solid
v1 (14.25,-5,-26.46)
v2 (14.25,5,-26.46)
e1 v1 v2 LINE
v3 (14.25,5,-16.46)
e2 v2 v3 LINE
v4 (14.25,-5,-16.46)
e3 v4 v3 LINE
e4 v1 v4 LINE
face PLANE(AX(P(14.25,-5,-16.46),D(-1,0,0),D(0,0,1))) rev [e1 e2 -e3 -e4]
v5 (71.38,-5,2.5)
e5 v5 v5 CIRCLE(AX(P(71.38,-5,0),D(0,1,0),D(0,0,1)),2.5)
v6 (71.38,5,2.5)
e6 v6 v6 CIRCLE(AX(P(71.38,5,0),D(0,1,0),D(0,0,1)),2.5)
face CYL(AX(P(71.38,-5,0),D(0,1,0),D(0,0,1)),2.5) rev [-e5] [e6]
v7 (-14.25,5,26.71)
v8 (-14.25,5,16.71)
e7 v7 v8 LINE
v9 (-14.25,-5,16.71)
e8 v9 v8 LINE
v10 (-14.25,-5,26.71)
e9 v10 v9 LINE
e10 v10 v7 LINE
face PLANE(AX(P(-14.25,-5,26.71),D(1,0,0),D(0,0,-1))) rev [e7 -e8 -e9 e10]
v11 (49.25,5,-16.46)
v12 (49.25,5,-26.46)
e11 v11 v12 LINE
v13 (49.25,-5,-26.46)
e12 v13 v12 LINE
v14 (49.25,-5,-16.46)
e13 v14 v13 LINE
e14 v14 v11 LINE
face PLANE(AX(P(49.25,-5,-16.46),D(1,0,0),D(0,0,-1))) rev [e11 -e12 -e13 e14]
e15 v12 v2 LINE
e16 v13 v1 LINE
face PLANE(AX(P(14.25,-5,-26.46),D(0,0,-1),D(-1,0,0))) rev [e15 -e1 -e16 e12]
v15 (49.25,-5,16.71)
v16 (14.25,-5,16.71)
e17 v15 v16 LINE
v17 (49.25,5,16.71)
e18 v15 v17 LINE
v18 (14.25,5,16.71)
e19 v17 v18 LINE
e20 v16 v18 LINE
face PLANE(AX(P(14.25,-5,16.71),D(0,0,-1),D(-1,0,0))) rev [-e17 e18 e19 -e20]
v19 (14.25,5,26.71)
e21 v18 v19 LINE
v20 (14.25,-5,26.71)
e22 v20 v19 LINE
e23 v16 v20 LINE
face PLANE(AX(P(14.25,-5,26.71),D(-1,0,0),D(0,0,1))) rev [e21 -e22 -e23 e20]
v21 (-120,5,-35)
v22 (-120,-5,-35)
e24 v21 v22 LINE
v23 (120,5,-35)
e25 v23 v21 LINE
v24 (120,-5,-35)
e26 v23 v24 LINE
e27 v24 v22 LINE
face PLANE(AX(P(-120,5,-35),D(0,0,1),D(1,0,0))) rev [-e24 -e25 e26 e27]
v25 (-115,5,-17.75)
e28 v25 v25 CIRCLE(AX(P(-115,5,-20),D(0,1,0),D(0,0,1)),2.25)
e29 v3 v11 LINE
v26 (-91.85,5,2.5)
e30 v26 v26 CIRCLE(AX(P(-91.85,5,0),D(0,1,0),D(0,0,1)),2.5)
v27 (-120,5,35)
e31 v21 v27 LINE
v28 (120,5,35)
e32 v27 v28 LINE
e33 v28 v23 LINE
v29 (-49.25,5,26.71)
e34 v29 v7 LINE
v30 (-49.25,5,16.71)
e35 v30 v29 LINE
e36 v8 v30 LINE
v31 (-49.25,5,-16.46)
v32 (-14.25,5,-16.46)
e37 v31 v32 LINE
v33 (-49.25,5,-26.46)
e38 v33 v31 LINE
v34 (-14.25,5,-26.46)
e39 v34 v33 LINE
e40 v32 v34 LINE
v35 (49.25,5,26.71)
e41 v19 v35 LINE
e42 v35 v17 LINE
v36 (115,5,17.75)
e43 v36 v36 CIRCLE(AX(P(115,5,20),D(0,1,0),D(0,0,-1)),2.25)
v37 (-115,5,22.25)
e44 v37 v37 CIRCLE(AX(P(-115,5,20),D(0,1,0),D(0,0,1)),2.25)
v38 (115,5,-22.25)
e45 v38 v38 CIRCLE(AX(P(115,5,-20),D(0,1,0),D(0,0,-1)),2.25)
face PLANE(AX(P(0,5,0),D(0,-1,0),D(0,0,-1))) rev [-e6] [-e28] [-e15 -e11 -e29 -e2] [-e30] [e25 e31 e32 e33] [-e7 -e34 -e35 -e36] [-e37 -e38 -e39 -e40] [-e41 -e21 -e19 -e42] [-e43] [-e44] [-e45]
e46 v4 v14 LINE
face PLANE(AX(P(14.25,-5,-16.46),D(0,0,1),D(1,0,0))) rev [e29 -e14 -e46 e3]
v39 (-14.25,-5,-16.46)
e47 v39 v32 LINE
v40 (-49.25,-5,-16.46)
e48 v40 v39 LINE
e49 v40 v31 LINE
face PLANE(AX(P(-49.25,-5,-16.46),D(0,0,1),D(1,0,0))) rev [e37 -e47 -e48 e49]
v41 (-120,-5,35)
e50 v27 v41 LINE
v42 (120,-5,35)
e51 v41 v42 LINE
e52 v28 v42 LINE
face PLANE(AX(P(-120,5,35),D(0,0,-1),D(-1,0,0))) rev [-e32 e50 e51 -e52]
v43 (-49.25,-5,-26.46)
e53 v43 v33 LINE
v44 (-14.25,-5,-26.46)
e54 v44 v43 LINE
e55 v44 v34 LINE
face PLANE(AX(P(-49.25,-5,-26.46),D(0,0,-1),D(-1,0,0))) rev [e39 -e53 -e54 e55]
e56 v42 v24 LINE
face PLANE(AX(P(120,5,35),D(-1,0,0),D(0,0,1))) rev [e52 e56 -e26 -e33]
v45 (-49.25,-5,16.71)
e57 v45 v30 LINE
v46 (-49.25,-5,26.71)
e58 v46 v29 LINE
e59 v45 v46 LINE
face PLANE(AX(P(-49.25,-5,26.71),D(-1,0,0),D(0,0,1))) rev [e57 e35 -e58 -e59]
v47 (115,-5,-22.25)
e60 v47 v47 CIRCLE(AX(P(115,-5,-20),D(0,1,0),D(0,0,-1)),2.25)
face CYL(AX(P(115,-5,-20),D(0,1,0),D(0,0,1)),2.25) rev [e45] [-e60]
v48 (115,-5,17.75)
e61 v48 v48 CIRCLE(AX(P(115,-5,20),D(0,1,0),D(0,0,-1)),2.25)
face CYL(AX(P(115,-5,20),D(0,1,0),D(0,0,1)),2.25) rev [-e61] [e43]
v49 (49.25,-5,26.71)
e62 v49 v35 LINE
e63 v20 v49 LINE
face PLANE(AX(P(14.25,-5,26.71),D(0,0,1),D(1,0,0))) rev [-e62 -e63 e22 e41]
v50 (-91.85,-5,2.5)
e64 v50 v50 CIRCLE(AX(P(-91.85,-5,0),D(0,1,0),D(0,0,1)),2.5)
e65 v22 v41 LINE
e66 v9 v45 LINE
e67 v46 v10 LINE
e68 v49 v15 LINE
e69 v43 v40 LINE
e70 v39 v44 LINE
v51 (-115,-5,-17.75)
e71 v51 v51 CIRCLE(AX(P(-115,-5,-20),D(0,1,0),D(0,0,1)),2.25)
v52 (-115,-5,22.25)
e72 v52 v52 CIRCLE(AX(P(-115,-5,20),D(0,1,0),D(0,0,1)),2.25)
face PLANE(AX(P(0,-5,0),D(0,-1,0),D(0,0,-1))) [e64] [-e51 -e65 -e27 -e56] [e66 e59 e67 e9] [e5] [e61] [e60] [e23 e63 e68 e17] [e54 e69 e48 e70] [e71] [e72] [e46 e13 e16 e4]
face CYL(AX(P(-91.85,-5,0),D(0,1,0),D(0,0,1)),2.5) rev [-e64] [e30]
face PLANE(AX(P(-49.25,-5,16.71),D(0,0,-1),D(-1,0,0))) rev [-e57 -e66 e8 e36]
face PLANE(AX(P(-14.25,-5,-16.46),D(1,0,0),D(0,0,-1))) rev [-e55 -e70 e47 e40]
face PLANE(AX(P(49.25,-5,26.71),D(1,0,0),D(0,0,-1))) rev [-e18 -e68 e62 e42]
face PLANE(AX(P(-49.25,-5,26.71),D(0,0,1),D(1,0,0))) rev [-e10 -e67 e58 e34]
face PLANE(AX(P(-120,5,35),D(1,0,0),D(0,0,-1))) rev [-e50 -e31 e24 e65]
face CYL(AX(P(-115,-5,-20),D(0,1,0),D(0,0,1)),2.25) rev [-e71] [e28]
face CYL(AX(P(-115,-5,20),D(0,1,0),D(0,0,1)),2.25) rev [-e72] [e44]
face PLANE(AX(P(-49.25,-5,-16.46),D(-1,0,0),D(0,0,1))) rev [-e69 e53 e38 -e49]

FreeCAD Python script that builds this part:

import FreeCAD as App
import Part
import Sketcher
from FreeCAD import Vector
Q = App.Units.Quantity

doc = App.newDocument("Part")
body = doc.addObject("PartDesign::Body", "Body")

sketch1 = body.newObject("Sketcher::SketchObject", "Sketch")
sketch1.AttachmentSupport = (doc.getObject("XZ_Plane"), [""])
sketch1.MapMode = "FlatFace"
sketch1.addGeometry(Part.LineSegment(Vector(-120, -35, 0), Vector(-120, 35, 0)), False)
sketch1.addGeometry(Part.LineSegment(Vector(-120, 35, 0), Vector(120, 35, 0)), False)
sketch1.addGeometry(Part.LineSegment(Vector(120, 35, 0), Vector(120, -35, 0)), False)
sketch1.addGeometry(Part.LineSegment(Vector(120, -35, 0), Vector(-120, -35, 0)), False)
sketch1.addConstraint(Sketcher.Constraint("Coincident", 0, 2, 1, 1))
sketch1.addConstraint(Sketcher.Constraint("Coincident", 1, 2, 2, 1))
sketch1.addConstraint(Sketcher.Constraint("Coincident", 2, 2, 3, 1))
sketch1.addConstraint(Sketcher.Constraint("Coincident", 3, 2, 0, 1))
sketch1.addConstraint(Sketcher.Constraint("Vertical", 0))
sketch1.addConstraint(Sketcher.Constraint("Horizontal", 1))
sketch1.addConstraint(Sketcher.Constraint("Vertical", 2))
sketch1.addConstraint(Sketcher.Constraint("Horizontal", 3))
sketch1.addConstraint(Sketcher.Constraint("Symmetric", 0, 2, 2, 2, -1, 1))
sketch1.addConstraint(Sketcher.Constraint("DistanceX", 1, 1, 1, 2, Q("240 mm")))
sketch1.addConstraint(Sketcher.Constraint("DistanceY", 0, 1, 0, 2, Q("70 mm")))
pad1 = body.newObject("PartDesign::Pad", "Pad")
pad1.Profile = sketch1
pad1.Length = 10
pad1.Midplane = True

sketch2 = body.newObject("Sketcher::SketchObject", "Sketch001")
sketch2.AttachmentSupport = (doc.getObject("XZ_Plane"), [""])
sketch2.MapMode = "FlatFace"
sketch2.AttachmentOffset = App.Placement(Vector(0, 0, -5), App.Rotation())
sketch2.addGeometry(Part.Circle(Vector(-115, -20, 0), Vector(0, 0, 1), 2.25), False)
sketch2.addGeometry(Part.Circle(Vector(-115, 20, 0), Vector(0, 0, 1), 2.25), False)
sketch2.addGeometry(Part.Circle(Vector(115, 20, 0), Vector(0, 0, 1), 2.25), False)
sketch2.addGeometry(Part.Circle(Vector(115, -20, 0), Vector(0, 0, 1), 2.25), False)
sketch2.addConstraint(Sketcher.Constraint("Equal", 0, 1))
sketch2.addConstraint(Sketcher.Constraint("Equal", 1, 2))
sketch2.addConstraint(Sketcher.Constraint("Equal", 2, 3))
sketch2.addConstraint(Sketcher.Constraint("Symmetric", 0, 3, 2, 3, -1, 1))
sketch2.addConstraint(Sketcher.Constraint("Symmetric", 1, 3, 3, 3, -1, 1))
sketch2.addConstraint(Sketcher.Constraint("Symmetric", 1, 3, 2, 3, -2))
sketch2.addConstraint(Sketcher.Constraint("Diameter", 0, Q("4.5 mm")))
sketch2.addConstraint(Sketcher.Constraint("DistanceX", 0, 3, -1, 1, Q("115 mm")))
sketch2.addConstraint(Sketcher.Constraint("DistanceY", 0, 3, -1, 1, Q("20 mm")))
pocket1 = body.newObject("PartDesign::Pocket", "Pocket")
pocket1.Profile = sketch2
pocket1.Type = "ThroughAll"
pocket1.Reversed = True

sketch3 = body.newObject("Sketcher::SketchObject", "Sketch002")
sketch3.AttachmentSupport = (doc.getObject("XZ_Plane"), [""])
sketch3.MapMode = "FlatFace"
sketch3.AttachmentOffset = App.Placement(Vector(0, 0, -5), App.Rotation())
sketch3.addGeometry(Part.LineSegment(Vector(-49.25, -26.46, 0), Vector(-49.25, -16.46, 0)), False)
sketch3.addGeometry(Part.LineSegment(Vector(-49.25, -16.46, 0), Vector(-14.25, -16.46, 0)), False)
sketch3.addGeometry(Part.LineSegment(Vector(-14.25, -16.46, 0), Vector(-14.25, -26.46, 0)), False)
sketch3.addGeometry(Part.LineSegment(Vector(-14.25, -26.46, 0), Vector(-49.25, -26.46, 0)), False)
sketch3.addGeometry(Part.LineSegment(Vector(-49.25, 16.71, 0), Vector(-49.25, 26.71, 0)), False)
sketch3.addGeometry(Part.LineSegment(Vector(-49.25, 26.71, 0), Vector(-14.25, 26.71, 0)), False)
sketch3.addGeometry(Part.LineSegment(Vector(-14.25, 26.71, 0), Vector(-14.25, 16.71, 0)), False)
sketch3.addGeometry(Part.LineSegment(Vector(-14.25, 16.71, 0), Vector(-49.25, 16.71, 0)), False)
sketch3.addGeometry(Part.LineSegment(Vector(14.25, -26.46, 0), Vector(14.25, -16.46, 0)), False)
sketch3.addGeometry(Part.LineSegment(Vector(14.25, -16.46, 0), Vector(49.25, -16.46, 0)), False)
sketch3.addGeometry(Part.LineSegment(Vector(49.25, -16.46, 0), Vector(49.25, -26.46, 0)), False)
sketch3.addGeometry(Part.LineSegment(Vector(49.25, -26.46, 0), Vector(14.25, -26.46, 0)), False)
sketch3.addGeometry(Part.LineSegment(Vector(14.25, 16.71, 0), Vector(14.25, 26.71, 0)), False)
sketch3.addGeometry(Part.LineSegment(Vector(14.25, 26.71, 0), Vector(49.25, 26.71, 0)), False)
sketch3.addGeometry(Part.LineSegment(Vector(49.25, 26.71, 0), Vector(49.25, 16.71, 0)), False)
sketch3.addGeometry(Part.LineSegment(Vector(49.25, 16.71, 0), Vector(14.25, 16.71, 0)), False)
sketch3.addConstraint(Sketcher.Constraint("Coincident", 0, 2, 1, 1))
sketch3.addConstraint(Sketcher.Constraint("Coincident", 1, 2, 2, 1))
sketch3.addConstraint(Sketcher.Constraint("Coincident", 2, 2, 3, 1))
sketch3.addConstraint(Sketcher.Constraint("Coincident", 3, 2, 0, 1))
sketch3.addConstraint(Sketcher.Constraint("Coincident", 4, 2, 5, 1))
sketch3.addConstraint(Sketcher.Constraint("Coincident", 5, 2, 6, 1))
sketch3.addConstraint(Sketcher.Constraint("Coincident", 6, 2, 7, 1))
sketch3.addConstraint(Sketcher.Constraint("Coincident", 7, 2, 4, 1))
sketch3.addConstraint(Sketcher.Constraint("Coincident", 8, 2, 9, 1))
sketch3.addConstraint(Sketcher.Constraint("Coincident", 9, 2, 10, 1))
sketch3.addConstraint(Sketcher.Constraint("Coincident", 10, 2, 11, 1))
sketch3.addConstraint(Sketcher.Constraint("Coincident", 11, 2, 8, 1))
sketch3.addConstraint(Sketcher.Constraint("Coincident", 12, 2, 13, 1))
sketch3.addConstraint(Sketcher.Constraint("Coincident", 13, 2, 14, 1))
sketch3.addConstraint(Sketcher.Constraint("Coincident", 14, 2, 15, 1))
sketch3.addConstraint(Sketcher.Constraint("Coincident", 15, 2, 12, 1))
sketch3.addConstraint(Sketcher.Constraint("Vertical", 0))
sketch3.addConstraint(Sketcher.Constraint("Horizontal", 1))
sketch3.addConstraint(Sketcher.Constraint("Vertical", 2))
sketch3.addConstraint(Sketcher.Constraint("Horizontal", 3))
sketch3.addConstraint(Sketcher.Constraint("Vertical", 4))
sketch3.addConstraint(Sketcher.Constraint("Horizontal", 5))
sketch3.addConstraint(Sketcher.Constraint("Vertical", 6))
sketch3.addConstraint(Sketcher.Constraint("Horizontal", 7))
sketch3.addConstraint(Sketcher.Constraint("Vertical", 8))
sketch3.addConstraint(Sketcher.Constraint("Horizontal", 9))
sketch3.addConstraint(Sketcher.Constraint("Vertical", 10))
sketch3.addConstraint(Sketcher.Constraint("Horizontal", 11))
sketch3.addConstraint(Sketcher.Constraint("Vertical", 12))
sketch3.addConstraint(Sketcher.Constraint("Horizontal", 13))
sketch3.addConstraint(Sketcher.Constraint("Vertical", 14))
sketch3.addConstraint(Sketcher.Constraint("Horizontal", 15))
sketch3.addConstraint(Sketcher.Constraint("Symmetric", 1, 2, 8, 2, -2))
sketch3.addConstraint(Sketcher.Constraint("Symmetric", 3, 2, 10, 2, -2))
sketch3.addConstraint(Sketcher.Constraint("Symmetric", 5, 2, 12, 2, -2))
sketch3.addConstraint(Sketcher.Constraint("Symmetric", 7, 2, 14, 2, -2))
sketch3.addConstraint(Sketcher.Constraint("Vertical", 3, 2, 4, 2))
sketch3.addConstraint(Sketcher.Constraint("Vertical", 2, 2, 5, 2))
sketch3.addConstraint(Sketcher.Constraint("Equal", 2, 4))
sketch3.addConstraint(Sketcher.Constraint("DistanceX", 1, 1, 1, 2, Q("35 mm")))
sketch3.addConstraint(Sketcher.Constraint("DistanceY", 0, 1, 0, 2, Q("10 mm")))
sketch3.addConstraint(Sketcher.Constraint("DistanceX", 1, 2, 8, 2, Q("28.5 mm")))
sketch3.addConstraint(Sketcher.Constraint("DistanceY", 0, 2, -1, 1, Q("16.46 mm")))
sketch3.addConstraint(Sketcher.Constraint("DistanceY", -1, 1, 4, 2, Q("26.71 mm")))
pocket2 = body.newObject("PartDesign::Pocket", "Pocket001")
pocket2.Profile = sketch3
pocket2.Type = "ThroughAll"
pocket2.Reversed = True

sketch4 = body.newObject("Sketcher::SketchObject", "Sketch003")
sketch4.AttachmentSupport = (doc.getObject("XZ_Plane"), [""])
sketch4.MapMode = "FlatFace"
sketch4.AttachmentOffset = App.Placement(Vector(0, 0, -5), App.Rotation())
sketch4.addGeometry(Part.Circle(Vector(71.38, 0, 0), Vector(0, 0, 1), 2.5), False)
sketch4.addGeometry(Part.Circle(Vector(-91.85, 0, 0), Vector(0, 0, 1), 2.5), False)
sketch4.addConstraint(Sketcher.Constraint("Equal", 0, 1))
sketch4.addConstraint(Sketcher.Constraint("PointOnObject", 0, 3, -1))
sketch4.addConstraint(Sketcher.Constraint("PointOnObject", 1, 3, -1))
sketch4.addConstraint(Sketcher.Constraint("Diameter", 0, Q("5 mm")))
sketch4.addConstraint(Sketcher.Constraint("DistanceX", -1, 1, 0, 3, Q("71.38 mm")))
sketch4.addConstraint(Sketcher.Constraint("DistanceX", 1, 3, -1, 1, Q("91.85 mm")))
pocket3 = body.newObject("PartDesign::Pocket", "Pocket002")
pocket3.Profile = sketch4
pocket3.Type = "ThroughAll"
pocket3.Reversed = True

doc.recompute()
